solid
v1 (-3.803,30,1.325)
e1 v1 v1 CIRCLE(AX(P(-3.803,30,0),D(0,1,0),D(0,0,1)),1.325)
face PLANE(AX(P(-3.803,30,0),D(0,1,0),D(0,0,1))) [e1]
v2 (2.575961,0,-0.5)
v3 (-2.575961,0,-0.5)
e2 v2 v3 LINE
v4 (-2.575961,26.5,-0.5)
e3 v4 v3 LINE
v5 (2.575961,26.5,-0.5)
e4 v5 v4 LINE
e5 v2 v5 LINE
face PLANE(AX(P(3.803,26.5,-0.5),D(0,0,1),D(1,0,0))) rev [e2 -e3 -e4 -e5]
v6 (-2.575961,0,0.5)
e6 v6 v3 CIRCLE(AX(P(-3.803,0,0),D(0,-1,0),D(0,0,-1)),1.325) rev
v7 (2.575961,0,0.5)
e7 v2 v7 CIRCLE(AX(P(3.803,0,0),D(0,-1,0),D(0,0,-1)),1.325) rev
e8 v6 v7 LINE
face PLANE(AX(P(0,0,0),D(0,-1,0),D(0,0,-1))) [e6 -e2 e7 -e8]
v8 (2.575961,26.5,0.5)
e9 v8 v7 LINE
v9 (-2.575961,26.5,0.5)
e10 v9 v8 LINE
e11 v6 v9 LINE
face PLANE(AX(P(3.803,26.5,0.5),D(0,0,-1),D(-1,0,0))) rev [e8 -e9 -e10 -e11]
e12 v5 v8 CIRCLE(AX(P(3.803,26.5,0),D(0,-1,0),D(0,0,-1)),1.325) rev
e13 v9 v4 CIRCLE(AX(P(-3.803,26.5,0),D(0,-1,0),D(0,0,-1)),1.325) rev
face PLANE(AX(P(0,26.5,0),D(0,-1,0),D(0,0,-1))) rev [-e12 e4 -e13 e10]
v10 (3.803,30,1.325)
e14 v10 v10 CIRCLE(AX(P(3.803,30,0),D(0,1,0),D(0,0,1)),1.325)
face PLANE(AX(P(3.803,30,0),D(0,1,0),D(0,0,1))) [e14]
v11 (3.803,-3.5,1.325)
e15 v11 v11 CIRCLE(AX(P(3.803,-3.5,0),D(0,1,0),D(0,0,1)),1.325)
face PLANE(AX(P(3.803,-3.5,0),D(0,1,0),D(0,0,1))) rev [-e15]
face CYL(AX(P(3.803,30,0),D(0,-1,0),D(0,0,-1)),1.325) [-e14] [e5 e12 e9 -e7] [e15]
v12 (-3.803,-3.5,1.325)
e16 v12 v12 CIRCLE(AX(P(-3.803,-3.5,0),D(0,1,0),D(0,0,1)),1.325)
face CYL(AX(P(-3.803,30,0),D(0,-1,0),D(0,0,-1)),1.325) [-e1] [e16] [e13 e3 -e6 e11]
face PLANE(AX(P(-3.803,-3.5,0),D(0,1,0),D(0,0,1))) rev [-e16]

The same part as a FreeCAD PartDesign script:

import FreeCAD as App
import Part
import Sketcher
from FreeCAD import Vector


def add_polygon(sketch, points):
    """Adds a closed chain of lines whose ends are joined by coincident constraints."""
    first, n = sketch.GeometryCount, len(points)
    for a, b in zip(points, points[1:] + points[:1]):
        sketch.addGeometry(Part.LineSegment(App.Vector(*a, 0), App.Vector(*b, 0)), False)
    for i in range(n):
        sketch.addConstraint(Sketcher.Constraint("Coincident", first + i, 2, first + (i + 1) % n, 1))

doc = App.newDocument("Part")
body = doc.addObject("PartDesign::Body", "Body")

sketch1 = doc.addObject("Sketcher::SketchObject", "Sketch")
body.addObject(sketch1)
sketch1.AttachmentSupport = (doc.XZ_Plane, [""])
sketch1.MapMode = "FlatFace"
add_polygon(sketch1, [(-3.803, -0.5), (-3.803, 0.5), (3.803, 0.5), (3.803, -0.5)])
sketch1.addConstraint(Sketcher.Constraint("Vertical", 0))
sketch1.addConstraint(Sketcher.Constraint("Horizontal", 1))
sketch1.addConstraint(Sketcher.Constraint("Vertical", 2))
sketch1.addConstraint(Sketcher.Constraint("Horizontal", 3))
sketch1.addConstraint(Sketcher.Constraint("Symmetric", 0, 2, 2, 2, -1, 1))
sketch1.addConstraint(Sketcher.Constraint("DistanceY", 0, 1, 0, 2, 1.0))
sketch1.addConstraint(Sketcher.Constraint("DistanceX", 1, 1, 1, 2, 7.606))
pad1 = doc.addObject("PartDesign::Pad", "Pad")
body.addObject(pad1)
pad1.Profile = sketch1
pad1.Length = 26.5
pad1.Reversed = True

sketch2 = doc.addObject("Sketcher::SketchObject", "Sketch001")
body.addObject(sketch2)
sketch2.AttachmentSupport = (doc.XZ_Plane, [""])
sketch2.MapMode = "FlatFace"
sketch2.AttachmentOffset = App.Placement(Vector(0, 0, -13.25), App.Rotation())
sketch2.addGeometry(Part.Circle(Vector(-3.803, 0, 0), Vector(0, 0, 1), 1.325), False)
sketch2.addGeometry(Part.Circle(Vector(3.803, 0, 0), Vector(0, 0, 1), 1.325), False)
sketch2.addConstraint(Sketcher.Constraint("Equal", 0, 1))
sketch2.addConstraint(Sketcher.Constraint("Symmetric", 0, 3, 1, 3, -1, 1))
sketch2.addConstraint(Sketcher.Constraint("PointOnObject", 0, 3, -1))
sketch2.addConstraint(Sketcher.Constraint("Diameter", 0, 2.65))
sketch2.addConstraint(Sketcher.Constraint("DistanceX", 0, 3, -1, 1, 3.803))
pad2 = doc.addObject("PartDesign::Pad", "Pad001")
body.addObject(pad2)
pad2.Profile = sketch2
pad2.Length = 33.5
pad2.Midplane = True

doc.recompute()
